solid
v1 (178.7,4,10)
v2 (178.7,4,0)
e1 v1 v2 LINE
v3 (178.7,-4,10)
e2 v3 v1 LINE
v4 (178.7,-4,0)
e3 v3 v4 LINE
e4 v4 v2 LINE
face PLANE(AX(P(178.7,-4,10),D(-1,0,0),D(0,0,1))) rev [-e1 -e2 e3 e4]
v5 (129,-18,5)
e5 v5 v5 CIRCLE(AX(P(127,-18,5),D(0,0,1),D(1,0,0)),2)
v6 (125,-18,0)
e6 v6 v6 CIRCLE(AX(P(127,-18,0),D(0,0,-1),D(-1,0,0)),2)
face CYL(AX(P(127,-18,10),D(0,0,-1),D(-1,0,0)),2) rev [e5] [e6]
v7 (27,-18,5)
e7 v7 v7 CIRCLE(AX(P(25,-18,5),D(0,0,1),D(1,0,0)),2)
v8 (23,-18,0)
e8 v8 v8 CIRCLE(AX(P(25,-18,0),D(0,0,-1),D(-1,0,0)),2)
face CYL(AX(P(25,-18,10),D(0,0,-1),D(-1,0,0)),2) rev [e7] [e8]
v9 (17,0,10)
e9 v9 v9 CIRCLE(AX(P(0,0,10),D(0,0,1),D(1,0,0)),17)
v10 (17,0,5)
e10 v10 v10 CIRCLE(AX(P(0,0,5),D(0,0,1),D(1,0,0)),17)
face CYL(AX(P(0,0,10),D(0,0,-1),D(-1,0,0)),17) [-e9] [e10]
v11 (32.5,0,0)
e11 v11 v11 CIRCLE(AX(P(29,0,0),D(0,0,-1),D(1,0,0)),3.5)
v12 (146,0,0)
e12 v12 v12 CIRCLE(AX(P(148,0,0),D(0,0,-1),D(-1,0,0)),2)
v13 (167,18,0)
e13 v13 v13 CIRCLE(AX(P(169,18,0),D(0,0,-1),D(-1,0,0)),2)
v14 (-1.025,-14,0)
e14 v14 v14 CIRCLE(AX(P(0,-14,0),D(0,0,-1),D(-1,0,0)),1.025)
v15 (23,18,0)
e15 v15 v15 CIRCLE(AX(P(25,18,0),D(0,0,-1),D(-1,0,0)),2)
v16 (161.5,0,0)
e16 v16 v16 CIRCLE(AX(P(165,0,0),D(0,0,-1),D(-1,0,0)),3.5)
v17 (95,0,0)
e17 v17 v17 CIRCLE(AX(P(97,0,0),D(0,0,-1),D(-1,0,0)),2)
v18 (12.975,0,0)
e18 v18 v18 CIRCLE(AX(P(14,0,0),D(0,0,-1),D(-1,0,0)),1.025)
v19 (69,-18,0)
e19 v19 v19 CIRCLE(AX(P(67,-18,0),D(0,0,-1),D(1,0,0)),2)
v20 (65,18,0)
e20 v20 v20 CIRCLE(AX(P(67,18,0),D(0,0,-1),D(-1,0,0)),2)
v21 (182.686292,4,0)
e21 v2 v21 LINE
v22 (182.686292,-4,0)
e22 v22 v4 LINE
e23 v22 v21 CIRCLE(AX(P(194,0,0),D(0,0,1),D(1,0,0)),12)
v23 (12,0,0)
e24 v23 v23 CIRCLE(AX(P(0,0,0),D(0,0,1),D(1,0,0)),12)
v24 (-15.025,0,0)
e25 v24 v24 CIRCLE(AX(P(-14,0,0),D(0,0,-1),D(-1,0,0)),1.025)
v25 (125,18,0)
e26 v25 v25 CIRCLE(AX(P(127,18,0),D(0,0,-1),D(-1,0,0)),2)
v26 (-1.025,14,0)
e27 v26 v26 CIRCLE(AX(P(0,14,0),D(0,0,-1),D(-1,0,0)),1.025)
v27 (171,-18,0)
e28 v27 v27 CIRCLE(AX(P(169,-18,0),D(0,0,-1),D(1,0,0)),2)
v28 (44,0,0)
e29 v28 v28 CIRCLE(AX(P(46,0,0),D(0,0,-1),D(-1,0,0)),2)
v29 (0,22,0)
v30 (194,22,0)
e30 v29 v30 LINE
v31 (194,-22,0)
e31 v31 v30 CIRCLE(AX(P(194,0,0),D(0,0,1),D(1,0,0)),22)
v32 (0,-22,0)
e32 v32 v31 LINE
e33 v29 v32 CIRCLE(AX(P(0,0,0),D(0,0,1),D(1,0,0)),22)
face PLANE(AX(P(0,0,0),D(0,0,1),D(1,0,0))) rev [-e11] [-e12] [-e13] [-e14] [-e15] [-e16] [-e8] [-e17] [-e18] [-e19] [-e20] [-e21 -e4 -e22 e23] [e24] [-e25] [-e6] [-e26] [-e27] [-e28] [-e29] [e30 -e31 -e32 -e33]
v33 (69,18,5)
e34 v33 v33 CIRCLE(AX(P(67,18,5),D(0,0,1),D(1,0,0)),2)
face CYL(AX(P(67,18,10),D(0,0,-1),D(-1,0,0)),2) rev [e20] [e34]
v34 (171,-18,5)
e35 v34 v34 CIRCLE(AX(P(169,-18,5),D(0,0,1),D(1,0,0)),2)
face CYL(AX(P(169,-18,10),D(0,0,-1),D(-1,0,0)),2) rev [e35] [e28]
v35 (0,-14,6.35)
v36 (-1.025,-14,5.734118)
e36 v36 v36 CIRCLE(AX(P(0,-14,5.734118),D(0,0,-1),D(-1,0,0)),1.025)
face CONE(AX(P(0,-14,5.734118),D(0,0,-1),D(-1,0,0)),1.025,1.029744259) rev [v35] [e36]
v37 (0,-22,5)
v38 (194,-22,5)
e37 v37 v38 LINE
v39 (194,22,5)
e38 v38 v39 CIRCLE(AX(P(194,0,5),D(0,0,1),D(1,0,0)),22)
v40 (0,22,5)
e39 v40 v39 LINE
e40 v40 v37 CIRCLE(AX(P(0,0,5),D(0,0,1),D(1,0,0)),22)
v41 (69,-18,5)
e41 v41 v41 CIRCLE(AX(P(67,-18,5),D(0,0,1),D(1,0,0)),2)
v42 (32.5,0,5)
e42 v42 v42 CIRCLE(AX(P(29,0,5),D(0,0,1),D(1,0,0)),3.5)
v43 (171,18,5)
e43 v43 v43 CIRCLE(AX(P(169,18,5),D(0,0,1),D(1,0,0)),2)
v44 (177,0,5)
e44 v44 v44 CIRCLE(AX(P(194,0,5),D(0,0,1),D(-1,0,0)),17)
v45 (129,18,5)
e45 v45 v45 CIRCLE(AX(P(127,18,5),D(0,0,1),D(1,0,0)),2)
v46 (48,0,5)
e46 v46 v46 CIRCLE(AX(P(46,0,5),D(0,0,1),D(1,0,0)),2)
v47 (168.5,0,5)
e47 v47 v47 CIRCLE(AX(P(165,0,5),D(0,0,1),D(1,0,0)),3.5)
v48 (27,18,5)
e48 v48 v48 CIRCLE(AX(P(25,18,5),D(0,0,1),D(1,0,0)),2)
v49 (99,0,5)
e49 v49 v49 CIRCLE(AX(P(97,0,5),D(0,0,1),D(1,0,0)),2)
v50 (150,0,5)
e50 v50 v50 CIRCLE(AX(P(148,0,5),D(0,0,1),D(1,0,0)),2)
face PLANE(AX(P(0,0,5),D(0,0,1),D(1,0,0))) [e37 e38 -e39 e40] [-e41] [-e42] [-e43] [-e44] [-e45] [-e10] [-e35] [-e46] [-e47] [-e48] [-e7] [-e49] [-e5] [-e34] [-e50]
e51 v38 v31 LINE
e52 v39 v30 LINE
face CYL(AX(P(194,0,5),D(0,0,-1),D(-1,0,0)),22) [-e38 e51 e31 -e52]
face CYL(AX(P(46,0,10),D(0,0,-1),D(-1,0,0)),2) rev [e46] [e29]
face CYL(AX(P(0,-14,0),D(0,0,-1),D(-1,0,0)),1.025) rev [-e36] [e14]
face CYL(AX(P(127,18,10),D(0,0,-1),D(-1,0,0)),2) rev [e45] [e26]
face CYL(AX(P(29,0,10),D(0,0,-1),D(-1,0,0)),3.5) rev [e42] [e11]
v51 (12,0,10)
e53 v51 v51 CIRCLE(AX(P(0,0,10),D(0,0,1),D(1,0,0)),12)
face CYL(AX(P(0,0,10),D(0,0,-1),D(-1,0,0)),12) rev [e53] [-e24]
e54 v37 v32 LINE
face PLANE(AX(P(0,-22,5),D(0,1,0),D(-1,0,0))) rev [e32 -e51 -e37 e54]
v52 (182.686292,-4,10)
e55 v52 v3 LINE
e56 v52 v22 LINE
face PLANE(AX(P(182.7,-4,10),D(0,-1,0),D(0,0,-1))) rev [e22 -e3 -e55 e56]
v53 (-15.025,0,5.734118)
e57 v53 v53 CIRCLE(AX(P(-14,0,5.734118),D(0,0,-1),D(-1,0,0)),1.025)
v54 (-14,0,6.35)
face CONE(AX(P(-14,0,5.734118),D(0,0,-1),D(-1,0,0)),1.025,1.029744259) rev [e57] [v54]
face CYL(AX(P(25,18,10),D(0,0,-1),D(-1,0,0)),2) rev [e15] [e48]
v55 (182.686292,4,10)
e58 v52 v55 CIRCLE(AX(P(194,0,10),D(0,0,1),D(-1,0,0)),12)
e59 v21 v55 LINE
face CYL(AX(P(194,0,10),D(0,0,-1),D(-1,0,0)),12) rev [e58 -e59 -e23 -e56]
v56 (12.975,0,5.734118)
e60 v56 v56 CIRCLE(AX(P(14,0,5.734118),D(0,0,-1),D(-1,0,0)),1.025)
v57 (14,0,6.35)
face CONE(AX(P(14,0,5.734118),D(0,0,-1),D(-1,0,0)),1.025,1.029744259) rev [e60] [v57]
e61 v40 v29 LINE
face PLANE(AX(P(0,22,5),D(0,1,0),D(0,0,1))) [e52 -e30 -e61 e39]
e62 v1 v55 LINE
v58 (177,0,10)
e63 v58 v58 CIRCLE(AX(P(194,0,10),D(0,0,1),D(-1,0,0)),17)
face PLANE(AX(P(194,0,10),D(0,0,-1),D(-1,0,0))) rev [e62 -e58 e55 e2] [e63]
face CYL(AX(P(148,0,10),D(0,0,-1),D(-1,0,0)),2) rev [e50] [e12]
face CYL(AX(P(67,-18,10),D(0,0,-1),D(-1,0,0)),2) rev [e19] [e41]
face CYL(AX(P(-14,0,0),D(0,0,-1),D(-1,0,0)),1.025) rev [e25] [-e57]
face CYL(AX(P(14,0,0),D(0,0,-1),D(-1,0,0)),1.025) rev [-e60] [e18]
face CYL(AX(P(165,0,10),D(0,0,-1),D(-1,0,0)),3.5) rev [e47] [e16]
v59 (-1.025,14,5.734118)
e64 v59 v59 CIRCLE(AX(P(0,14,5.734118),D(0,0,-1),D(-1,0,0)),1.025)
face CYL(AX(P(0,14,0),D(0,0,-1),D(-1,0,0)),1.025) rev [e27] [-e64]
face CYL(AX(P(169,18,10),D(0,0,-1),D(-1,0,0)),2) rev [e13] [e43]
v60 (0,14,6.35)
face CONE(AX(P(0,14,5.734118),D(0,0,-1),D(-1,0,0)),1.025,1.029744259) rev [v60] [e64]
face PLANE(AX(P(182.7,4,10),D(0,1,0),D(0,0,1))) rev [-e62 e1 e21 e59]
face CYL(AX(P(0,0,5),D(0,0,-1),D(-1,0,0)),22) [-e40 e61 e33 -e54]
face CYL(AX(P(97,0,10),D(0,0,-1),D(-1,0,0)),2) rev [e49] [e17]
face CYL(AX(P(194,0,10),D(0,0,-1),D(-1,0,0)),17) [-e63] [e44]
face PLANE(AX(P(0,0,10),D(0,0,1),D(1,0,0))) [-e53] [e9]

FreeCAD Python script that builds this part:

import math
import FreeCAD as App
import Part
import Sketcher

V = App.Vector
Q = App.Units.Quantity

doc = App.newDocument("Part")
body = doc.addObject("PartDesign::Body", "Body")

# Sketch on XY plane
sketch1 = body.newObject("Sketcher::SketchObject", "Sketch")
sketch1.AttachmentSupport = (doc.getObject("XY_Plane"), [""])
sketch1.MapMode = "FlatFace"
sketch1.addGeometry(Part.LineSegment(V(194, 22, 0), V(0, 22, 0)), False)
sketch1.addGeometry(Part.ArcOfCircle(Part.Circle(V(0, 0, 0), V(0, 0, 1), 22), math.radians(90), math.radians(270)), False)
sketch1.addGeometry(Part.LineSegment(V(0, -22, 0), V(194, -22, 0)), False)
sketch1.addGeometry(Part.ArcOfCircle(Part.Circle(V(194, 0, 0), V(0, 0, 1), 22), math.radians(-90), math.radians(90)), False)
sketch1.addConstraint(Sketcher.Constraint("Tangent", 0, 2, 1, 1))
sketch1.addConstraint(Sketcher.Constraint("Tangent", 1, 2, 2, 1))
sketch1.addConstraint(Sketcher.Constraint("Tangent", 2, 2, 3, 1))
sketch1.addConstraint(Sketcher.Constraint("Tangent", 3, 2, 0, 1))
sketch1.addConstraint(Sketcher.Constraint("Horizontal", 0))
sketch1.addConstraint(Sketcher.Constraint("Horizontal", 2))
sketch1.addConstraint(Sketcher.Constraint("Coincident", 1, 3, -1, 1))
sketch1.addConstraint(Sketcher.Constraint("Radius", 1, Q("22 mm")))
sketch1.addConstraint(Sketcher.Constraint("DistanceX", 0, 2, 0, 1, Q("194 mm")))
pad1 = body.newObject("PartDesign::Pad", "Pad")
pad1.Profile = sketch1
pad1.Length = 5

# Sketch on XY plane
sketch2 = body.newObject("Sketcher::SketchObject", "Sketch001")
sketch2.AttachmentSupport = (doc.getObject("XY_Plane"), [""])
sketch2.MapMode = "FlatFace"
sketch2.AttachmentOffset = App.Placement(V(0, 0, 5), App.Rotation())
sketch2.addGeometry(Part.Circle(V(0, 0, 0), V(0, 0, 1), 17), False)
sketch2.addGeometry(Part.Circle(V(0, 0, 0), V(0, 0, 1), 12), False)
sketch2.addGeometry(Part.Circle(V(194, 0, 0), V(0, 0, 1), 17), False)
sketch2.addGeometry(Part.Circle(V(194, 0, 0), V(0, 0, 1), 12), False)
sketch2.addConstraint(Sketcher.Constraint("Coincident", 0, 3, -1, 1))
sketch2.addConstraint(Sketcher.Constraint("Coincident", 1, 3, -1, 1))
sketch2.addConstraint(Sketcher.Constraint("Coincident", 3, 3, 2, 3))
sketch2.addConstraint(Sketcher.Constraint("Equal", 0, 2))
sketch2.addConstraint(Sketcher.Constraint("Equal", 1, 3))
sketch2.addConstraint(Sketcher.Constraint("PointOnObject", 2, 3, -1))
sketch2.addConstraint(Sketcher.Constraint("Diameter", 0, Q("34 mm")))
sketch2.addConstraint(Sketcher.Constraint("Diameter", 1, Q("24 mm")))
sketch2.addConstraint(Sketcher.Constraint("DistanceX", -1, 1, 2, 3, Q("194 mm")))
pad2 = body.newObject("PartDesign::Pad", "Pad001")
pad2.Profile = sketch2
pad2.Length = 5

# Sketch on XY plane
sketch3 = body.newObject("Sketcher::SketchObject", "Sketch002")
sketch3.AttachmentSupport = (doc.getObject("XY_Plane"), [""])
sketch3.MapMode = "FlatFace"
sketch3.AttachmentOffset = App.Placement(V(0, 0, 5), App.Rotation())
sketch3.addGeometry(Part.Circle(V(194, 0, 0), V(0, 0, 1), 12), False)
sketch3.addGeometry(Part.Circle(V(0, 0, 0), V(0, 0, 1), 12), False)
sketch3.addConstraint(Sketcher.Constraint("Coincident", 1, 3, -1, 1))
sketch3.addConstraint(Sketcher.Constraint("Equal", 0, 1))
sketch3.addConstraint(Sketcher.Constraint("PointOnObject", 0, 3, -1))
sketch3.addConstraint(Sketcher.Constraint("Diameter", 0, Q("24 mm")))
sketch3.addConstraint(Sketcher.Constraint("DistanceX", -1, 1, 0, 3, Q("194 mm")))
pocket1 = body.newObject("PartDesign::Pocket", "Pocket")
pocket1.Profile = sketch3
pocket1.Length = 6

# Sketch on XY plane
sketch4 = body.newObject("Sketcher::SketchObject", "Sketch003")
sketch4.AttachmentSupport = (doc.getObject("XY_Plane"), [""])
sketch4.MapMode = "FlatFace"
sketch4.addGeometry(Part.Circle(V(169, 18, 0), V(0, 0, 1), 2), False)
sketch4.addGeometry(Part.Circle(V(67, 18, 0), V(0, 0, 1), 2), False)
sketch4.addGeometry(Part.Circle(V(67, -18, 0), V(0, 0, 1), 2), False)
sketch4.addGeometry(Part.Circle(V(169, -18, 0), V(0, 0, 1), 2), False)
sketch4.addGeometry(Part.Circle(V(127, 18, 0), V(0, 0, 1), 2), False)
sketch4.addGeometry(Part.Circle(V(127, -18, 0), V(0, 0, 1), 2), False)
sketch4.addGeometry(Part.Circle(V(25, 18, 0), V(0, 0, 1), 2), False)
sketch4.addGeometry(Part.Circle(V(25, -18, 0), V(0, 0, 1), 2), False)
sketch4.addGeometry(Part.Circle(V(148, 0, 0), V(0, 0, 1), 2), False)
sketch4.addGeometry(Part.Circle(V(97, 0, 0), V(0, 0, 1), 2), False)
sketch4.addGeometry(Part.Circle(V(46, 0, 0), V(0, 0, 1), 2), False)
sketch4.addGeometry(Part.Circle(V(165, 0, 0), V(0, 0, 1), 3.5), False)
sketch4.addGeometry(Part.Circle(V(29, 0, 0), V(0, 0, 1), 3.5), False)
sketch4.addConstraint(Sketcher.Constraint("Equal", 0, 1))
sketch4.addConstraint(Sketcher.Constraint("Equal", 1, 2))
sketch4.addConstraint(Sketcher.Constraint("Equal", 2, 3))
sketch4.addConstraint(Sketcher.Constraint("Equal", 3, 4))
sketch4.addConstraint(Sketcher.Constraint("Equal", 4, 5))
sketch4.addConstraint(Sketcher.Constraint("Equal", 5, 6))
sketch4.addConstraint(Sketcher.Constraint("Equal", 6, 7))
sketch4.addConstraint(Sketcher.Constraint("Equal", 7, 8))
sketch4.addConstraint(Sketcher.Constraint("Equal", 8, 9))
sketch4.addConstraint(Sketcher.Constraint("Equal", 9, 10))
sketch4.addConstraint(Sketcher.Constraint("Equal", 11, 12))
sketch4.addConstraint(Sketcher.Constraint("Symmetric", 1, 3, 2, 3, -1))
sketch4.addConstraint(Sketcher.Constraint("Symmetric", 0, 3, 3, 3, -1))
sketch4.addConstraint(Sketcher.Constraint("Symmetric", 4, 3, 5, 3, -1))
sketch4.addConstraint(Sketcher.Constraint("Symmetric", 6, 3, 7, 3, -1))
sketch4.addConstraint(Sketcher.Constraint("PointOnObject", 8, 3, -1))
sketch4.addConstraint(Sketcher.Constraint("PointOnObject", 9, 3, -1))
sketch4.addConstraint(Sketcher.Constraint("PointOnObject", 10, 3, -1))
sketch4.addConstraint(Sketcher.Constraint("PointOnObject", 11, 3, -1))
sketch4.addConstraint(Sketcher.Constraint("PointOnObject", 12, 3, -1))
sketch4.addConstraint(Sketcher.Constraint("Horizontal", 0, 3, 1, 3))
sketch4.addConstraint(Sketcher.Constraint("Horizontal", 1, 3, 4, 3))
sketch4.addConstraint(Sketcher.Constraint("Horizontal", 4, 3, 6, 3))
sketch4.addConstraint(Sketcher.Constraint("Diameter", 0, Q("4 mm")))
sketch4.addConstraint(Sketcher.Constraint("Diameter", 11, Q("7 mm")))
sketch4.addConstraint(Sketcher.Constraint("DistanceX", -1, 1, 0, 3, Q("169 mm")))
sketch4.addConstraint(Sketcher.Constraint("DistanceY", -1, 1, 0, 3, Q("18 mm")))
sketch4.addConstraint(Sketcher.Constraint("DistanceX", -1, 1, 1, 3, Q("67 mm")))
sketch4.addConstraint(Sketcher.Constraint("DistanceX", -1, 1, 4, 3, Q("127 mm")))
sketch4.addConstraint(Sketcher.Constraint("DistanceX", -1, 1, 6, 3, Q("25 mm")))
sketch4.addConstraint(Sketcher.Constraint("DistanceX", -1, 1, 8, 3, Q("148 mm")))
sketch4.addConstraint(Sketcher.Constraint("DistanceX", -1, 1, 9, 3, Q("97 mm")))
sketch4.addConstraint(Sketcher.Constraint("DistanceX", -1, 1, 10, 3, Q("46 mm")))
sketch4.addConstraint(Sketcher.Constraint("DistanceX", -1, 1, 11, 3, Q("165 mm")))
sketch4.addConstraint(Sketcher.Constraint("DistanceX", -1, 1, 12, 3, Q("29 mm")))
pocket2 = body.newObject("PartDesign::Pocket", "Pocket001")
pocket2.Profile = sketch4
pocket2.Length = 10
pocket2.Reversed = True

# Sketch on XY plane
sketch5 = body.newObject("Sketcher::SketchObject", "Sketch004")
sketch5.AttachmentSupport = (doc.getObject("XY_Plane"), [""])
sketch5.MapMode = "FlatFace"
sketch5.addGeometry(Part.LineSegment(V(182.7, 4, 0), V(182.7, -4, 0)), False)
sketch5.addGeometry(Part.LineSegment(V(182.7, -4, 0), V(178.7, -4, 0)), False)
sketch5.addGeometry(Part.LineSegment(V(178.7, -4, 0), V(178.7, 4, 0)), False)
sketch5.addGeometry(Part.LineSegment(V(178.7, 4, 0), V(182.7, 4, 0)), False)
sketch5.addConstraint(Sketcher.Constraint("Coincident", 0, 2, 1, 1))
sketch5.addConstraint(Sketcher.Constraint("Coincident", 1, 2, 2, 1))
sketch5.addConstraint(Sketcher.Constraint("Coincident", 2, 2, 3, 1))
sketch5.addConstraint(Sketcher.Constraint("Coincident", 3, 2, 0, 1))
sketch5.addConstraint(Sketcher.Constraint("Vertical", 0))
sketch5.addConstraint(Sketcher.Constraint("Horizontal", 1))
sketch5.addConstraint(Sketcher.Constraint("Vertical", 2))
sketch5.addConstraint(Sketcher.Constraint("Horizontal", 3))
sketch5.addConstraint(Sketcher.Constraint("DistanceX", 1, 2, 1, 1, Q("4 mm")))
sketch5.addConstraint(Sketcher.Constraint("DistanceY", 0, 2, 0, 1, Q("8 mm")))
sketch5.addConstraint(Sketcher.Constraint("DistanceY", 0, 2, -1, 1, Q("4 mm")))
sketch5.addConstraint(Sketcher.Constraint("DistanceX", -1, 1, 0, 2, Q("182.7 mm")))
pocket3 = body.newObject("PartDesign::Pocket", "Pocket002")
pocket3.Profile = sketch5
pocket3.Length = 10
pocket3.Reversed = True

# Sketch on XY plane
sketch6 = body.newObject("Sketcher::SketchObject", "Sketch005")
sketch6.AttachmentSupport = (doc.getObject("XY_Plane"), [""])
sketch6.MapMode = "FlatFace"
sketch6.addGeometry(Part.Circle(V(0, 14, 0), V(0, 0, 1), 1.025), False)
sketch6.addGeometry(Part.Circle(V(-14, 0, 0), V(0, 0, 1), 1.025), False)
sketch6.addGeometry(Part.Circle(V(0, -14, 0), V(0, 0, 1), 1.025), False)
sketch6.addGeometry(Part.Circle(V(14, 0, 0), V(0, 0, 1), 1.025), False)
sketch6.addConstraint(Sketcher.Constraint("Equal", 0, 1))
sketch6.addConstraint(Sketcher.Constraint("Equal", 1, 2))
sketch6.addConstraint(Sketcher.Constraint("Equal", 2, 3))
sketch6.addConstraint(Sketcher.Constraint("Symmetric", 0, 3, 2, 3, -1, 1))
sketch6.addConstraint(Sketcher.Constraint("Symmetric", 1, 3, 3, 3, -1, 1))
sketch6.addConstraint(Sketcher.Constraint("PointOnObject", 0, 3, -2))
sketch6.addConstraint(Sketcher.Constraint("PointOnObject", 1, 3, -1))
sketch6.addConstraint(Sketcher.Constraint("Diameter", 0, Q("2.05 mm")))
sketch6.addConstraint(Sketcher.Constraint("DistanceY", -1, 1, 0, 3, Q("14 mm")))
sketch6.addConstraint(Sketcher.Constraint("DistanceX", 1, 3, -1, 1, Q("14 mm")))
doc.recompute()
hole = body.newObject("PartDesign::Hole", "Hole")
hole.Profile = sketch6
hole.ThreadType = "None"
hole.Diameter = 2.05
hole.DepthType = "Dimension"
hole.Depth = 5.734118
hole.DrillPoint = "Angled"
hole.DrillPointAngle = 118
hole.Reversed = True

doc.recompute()
